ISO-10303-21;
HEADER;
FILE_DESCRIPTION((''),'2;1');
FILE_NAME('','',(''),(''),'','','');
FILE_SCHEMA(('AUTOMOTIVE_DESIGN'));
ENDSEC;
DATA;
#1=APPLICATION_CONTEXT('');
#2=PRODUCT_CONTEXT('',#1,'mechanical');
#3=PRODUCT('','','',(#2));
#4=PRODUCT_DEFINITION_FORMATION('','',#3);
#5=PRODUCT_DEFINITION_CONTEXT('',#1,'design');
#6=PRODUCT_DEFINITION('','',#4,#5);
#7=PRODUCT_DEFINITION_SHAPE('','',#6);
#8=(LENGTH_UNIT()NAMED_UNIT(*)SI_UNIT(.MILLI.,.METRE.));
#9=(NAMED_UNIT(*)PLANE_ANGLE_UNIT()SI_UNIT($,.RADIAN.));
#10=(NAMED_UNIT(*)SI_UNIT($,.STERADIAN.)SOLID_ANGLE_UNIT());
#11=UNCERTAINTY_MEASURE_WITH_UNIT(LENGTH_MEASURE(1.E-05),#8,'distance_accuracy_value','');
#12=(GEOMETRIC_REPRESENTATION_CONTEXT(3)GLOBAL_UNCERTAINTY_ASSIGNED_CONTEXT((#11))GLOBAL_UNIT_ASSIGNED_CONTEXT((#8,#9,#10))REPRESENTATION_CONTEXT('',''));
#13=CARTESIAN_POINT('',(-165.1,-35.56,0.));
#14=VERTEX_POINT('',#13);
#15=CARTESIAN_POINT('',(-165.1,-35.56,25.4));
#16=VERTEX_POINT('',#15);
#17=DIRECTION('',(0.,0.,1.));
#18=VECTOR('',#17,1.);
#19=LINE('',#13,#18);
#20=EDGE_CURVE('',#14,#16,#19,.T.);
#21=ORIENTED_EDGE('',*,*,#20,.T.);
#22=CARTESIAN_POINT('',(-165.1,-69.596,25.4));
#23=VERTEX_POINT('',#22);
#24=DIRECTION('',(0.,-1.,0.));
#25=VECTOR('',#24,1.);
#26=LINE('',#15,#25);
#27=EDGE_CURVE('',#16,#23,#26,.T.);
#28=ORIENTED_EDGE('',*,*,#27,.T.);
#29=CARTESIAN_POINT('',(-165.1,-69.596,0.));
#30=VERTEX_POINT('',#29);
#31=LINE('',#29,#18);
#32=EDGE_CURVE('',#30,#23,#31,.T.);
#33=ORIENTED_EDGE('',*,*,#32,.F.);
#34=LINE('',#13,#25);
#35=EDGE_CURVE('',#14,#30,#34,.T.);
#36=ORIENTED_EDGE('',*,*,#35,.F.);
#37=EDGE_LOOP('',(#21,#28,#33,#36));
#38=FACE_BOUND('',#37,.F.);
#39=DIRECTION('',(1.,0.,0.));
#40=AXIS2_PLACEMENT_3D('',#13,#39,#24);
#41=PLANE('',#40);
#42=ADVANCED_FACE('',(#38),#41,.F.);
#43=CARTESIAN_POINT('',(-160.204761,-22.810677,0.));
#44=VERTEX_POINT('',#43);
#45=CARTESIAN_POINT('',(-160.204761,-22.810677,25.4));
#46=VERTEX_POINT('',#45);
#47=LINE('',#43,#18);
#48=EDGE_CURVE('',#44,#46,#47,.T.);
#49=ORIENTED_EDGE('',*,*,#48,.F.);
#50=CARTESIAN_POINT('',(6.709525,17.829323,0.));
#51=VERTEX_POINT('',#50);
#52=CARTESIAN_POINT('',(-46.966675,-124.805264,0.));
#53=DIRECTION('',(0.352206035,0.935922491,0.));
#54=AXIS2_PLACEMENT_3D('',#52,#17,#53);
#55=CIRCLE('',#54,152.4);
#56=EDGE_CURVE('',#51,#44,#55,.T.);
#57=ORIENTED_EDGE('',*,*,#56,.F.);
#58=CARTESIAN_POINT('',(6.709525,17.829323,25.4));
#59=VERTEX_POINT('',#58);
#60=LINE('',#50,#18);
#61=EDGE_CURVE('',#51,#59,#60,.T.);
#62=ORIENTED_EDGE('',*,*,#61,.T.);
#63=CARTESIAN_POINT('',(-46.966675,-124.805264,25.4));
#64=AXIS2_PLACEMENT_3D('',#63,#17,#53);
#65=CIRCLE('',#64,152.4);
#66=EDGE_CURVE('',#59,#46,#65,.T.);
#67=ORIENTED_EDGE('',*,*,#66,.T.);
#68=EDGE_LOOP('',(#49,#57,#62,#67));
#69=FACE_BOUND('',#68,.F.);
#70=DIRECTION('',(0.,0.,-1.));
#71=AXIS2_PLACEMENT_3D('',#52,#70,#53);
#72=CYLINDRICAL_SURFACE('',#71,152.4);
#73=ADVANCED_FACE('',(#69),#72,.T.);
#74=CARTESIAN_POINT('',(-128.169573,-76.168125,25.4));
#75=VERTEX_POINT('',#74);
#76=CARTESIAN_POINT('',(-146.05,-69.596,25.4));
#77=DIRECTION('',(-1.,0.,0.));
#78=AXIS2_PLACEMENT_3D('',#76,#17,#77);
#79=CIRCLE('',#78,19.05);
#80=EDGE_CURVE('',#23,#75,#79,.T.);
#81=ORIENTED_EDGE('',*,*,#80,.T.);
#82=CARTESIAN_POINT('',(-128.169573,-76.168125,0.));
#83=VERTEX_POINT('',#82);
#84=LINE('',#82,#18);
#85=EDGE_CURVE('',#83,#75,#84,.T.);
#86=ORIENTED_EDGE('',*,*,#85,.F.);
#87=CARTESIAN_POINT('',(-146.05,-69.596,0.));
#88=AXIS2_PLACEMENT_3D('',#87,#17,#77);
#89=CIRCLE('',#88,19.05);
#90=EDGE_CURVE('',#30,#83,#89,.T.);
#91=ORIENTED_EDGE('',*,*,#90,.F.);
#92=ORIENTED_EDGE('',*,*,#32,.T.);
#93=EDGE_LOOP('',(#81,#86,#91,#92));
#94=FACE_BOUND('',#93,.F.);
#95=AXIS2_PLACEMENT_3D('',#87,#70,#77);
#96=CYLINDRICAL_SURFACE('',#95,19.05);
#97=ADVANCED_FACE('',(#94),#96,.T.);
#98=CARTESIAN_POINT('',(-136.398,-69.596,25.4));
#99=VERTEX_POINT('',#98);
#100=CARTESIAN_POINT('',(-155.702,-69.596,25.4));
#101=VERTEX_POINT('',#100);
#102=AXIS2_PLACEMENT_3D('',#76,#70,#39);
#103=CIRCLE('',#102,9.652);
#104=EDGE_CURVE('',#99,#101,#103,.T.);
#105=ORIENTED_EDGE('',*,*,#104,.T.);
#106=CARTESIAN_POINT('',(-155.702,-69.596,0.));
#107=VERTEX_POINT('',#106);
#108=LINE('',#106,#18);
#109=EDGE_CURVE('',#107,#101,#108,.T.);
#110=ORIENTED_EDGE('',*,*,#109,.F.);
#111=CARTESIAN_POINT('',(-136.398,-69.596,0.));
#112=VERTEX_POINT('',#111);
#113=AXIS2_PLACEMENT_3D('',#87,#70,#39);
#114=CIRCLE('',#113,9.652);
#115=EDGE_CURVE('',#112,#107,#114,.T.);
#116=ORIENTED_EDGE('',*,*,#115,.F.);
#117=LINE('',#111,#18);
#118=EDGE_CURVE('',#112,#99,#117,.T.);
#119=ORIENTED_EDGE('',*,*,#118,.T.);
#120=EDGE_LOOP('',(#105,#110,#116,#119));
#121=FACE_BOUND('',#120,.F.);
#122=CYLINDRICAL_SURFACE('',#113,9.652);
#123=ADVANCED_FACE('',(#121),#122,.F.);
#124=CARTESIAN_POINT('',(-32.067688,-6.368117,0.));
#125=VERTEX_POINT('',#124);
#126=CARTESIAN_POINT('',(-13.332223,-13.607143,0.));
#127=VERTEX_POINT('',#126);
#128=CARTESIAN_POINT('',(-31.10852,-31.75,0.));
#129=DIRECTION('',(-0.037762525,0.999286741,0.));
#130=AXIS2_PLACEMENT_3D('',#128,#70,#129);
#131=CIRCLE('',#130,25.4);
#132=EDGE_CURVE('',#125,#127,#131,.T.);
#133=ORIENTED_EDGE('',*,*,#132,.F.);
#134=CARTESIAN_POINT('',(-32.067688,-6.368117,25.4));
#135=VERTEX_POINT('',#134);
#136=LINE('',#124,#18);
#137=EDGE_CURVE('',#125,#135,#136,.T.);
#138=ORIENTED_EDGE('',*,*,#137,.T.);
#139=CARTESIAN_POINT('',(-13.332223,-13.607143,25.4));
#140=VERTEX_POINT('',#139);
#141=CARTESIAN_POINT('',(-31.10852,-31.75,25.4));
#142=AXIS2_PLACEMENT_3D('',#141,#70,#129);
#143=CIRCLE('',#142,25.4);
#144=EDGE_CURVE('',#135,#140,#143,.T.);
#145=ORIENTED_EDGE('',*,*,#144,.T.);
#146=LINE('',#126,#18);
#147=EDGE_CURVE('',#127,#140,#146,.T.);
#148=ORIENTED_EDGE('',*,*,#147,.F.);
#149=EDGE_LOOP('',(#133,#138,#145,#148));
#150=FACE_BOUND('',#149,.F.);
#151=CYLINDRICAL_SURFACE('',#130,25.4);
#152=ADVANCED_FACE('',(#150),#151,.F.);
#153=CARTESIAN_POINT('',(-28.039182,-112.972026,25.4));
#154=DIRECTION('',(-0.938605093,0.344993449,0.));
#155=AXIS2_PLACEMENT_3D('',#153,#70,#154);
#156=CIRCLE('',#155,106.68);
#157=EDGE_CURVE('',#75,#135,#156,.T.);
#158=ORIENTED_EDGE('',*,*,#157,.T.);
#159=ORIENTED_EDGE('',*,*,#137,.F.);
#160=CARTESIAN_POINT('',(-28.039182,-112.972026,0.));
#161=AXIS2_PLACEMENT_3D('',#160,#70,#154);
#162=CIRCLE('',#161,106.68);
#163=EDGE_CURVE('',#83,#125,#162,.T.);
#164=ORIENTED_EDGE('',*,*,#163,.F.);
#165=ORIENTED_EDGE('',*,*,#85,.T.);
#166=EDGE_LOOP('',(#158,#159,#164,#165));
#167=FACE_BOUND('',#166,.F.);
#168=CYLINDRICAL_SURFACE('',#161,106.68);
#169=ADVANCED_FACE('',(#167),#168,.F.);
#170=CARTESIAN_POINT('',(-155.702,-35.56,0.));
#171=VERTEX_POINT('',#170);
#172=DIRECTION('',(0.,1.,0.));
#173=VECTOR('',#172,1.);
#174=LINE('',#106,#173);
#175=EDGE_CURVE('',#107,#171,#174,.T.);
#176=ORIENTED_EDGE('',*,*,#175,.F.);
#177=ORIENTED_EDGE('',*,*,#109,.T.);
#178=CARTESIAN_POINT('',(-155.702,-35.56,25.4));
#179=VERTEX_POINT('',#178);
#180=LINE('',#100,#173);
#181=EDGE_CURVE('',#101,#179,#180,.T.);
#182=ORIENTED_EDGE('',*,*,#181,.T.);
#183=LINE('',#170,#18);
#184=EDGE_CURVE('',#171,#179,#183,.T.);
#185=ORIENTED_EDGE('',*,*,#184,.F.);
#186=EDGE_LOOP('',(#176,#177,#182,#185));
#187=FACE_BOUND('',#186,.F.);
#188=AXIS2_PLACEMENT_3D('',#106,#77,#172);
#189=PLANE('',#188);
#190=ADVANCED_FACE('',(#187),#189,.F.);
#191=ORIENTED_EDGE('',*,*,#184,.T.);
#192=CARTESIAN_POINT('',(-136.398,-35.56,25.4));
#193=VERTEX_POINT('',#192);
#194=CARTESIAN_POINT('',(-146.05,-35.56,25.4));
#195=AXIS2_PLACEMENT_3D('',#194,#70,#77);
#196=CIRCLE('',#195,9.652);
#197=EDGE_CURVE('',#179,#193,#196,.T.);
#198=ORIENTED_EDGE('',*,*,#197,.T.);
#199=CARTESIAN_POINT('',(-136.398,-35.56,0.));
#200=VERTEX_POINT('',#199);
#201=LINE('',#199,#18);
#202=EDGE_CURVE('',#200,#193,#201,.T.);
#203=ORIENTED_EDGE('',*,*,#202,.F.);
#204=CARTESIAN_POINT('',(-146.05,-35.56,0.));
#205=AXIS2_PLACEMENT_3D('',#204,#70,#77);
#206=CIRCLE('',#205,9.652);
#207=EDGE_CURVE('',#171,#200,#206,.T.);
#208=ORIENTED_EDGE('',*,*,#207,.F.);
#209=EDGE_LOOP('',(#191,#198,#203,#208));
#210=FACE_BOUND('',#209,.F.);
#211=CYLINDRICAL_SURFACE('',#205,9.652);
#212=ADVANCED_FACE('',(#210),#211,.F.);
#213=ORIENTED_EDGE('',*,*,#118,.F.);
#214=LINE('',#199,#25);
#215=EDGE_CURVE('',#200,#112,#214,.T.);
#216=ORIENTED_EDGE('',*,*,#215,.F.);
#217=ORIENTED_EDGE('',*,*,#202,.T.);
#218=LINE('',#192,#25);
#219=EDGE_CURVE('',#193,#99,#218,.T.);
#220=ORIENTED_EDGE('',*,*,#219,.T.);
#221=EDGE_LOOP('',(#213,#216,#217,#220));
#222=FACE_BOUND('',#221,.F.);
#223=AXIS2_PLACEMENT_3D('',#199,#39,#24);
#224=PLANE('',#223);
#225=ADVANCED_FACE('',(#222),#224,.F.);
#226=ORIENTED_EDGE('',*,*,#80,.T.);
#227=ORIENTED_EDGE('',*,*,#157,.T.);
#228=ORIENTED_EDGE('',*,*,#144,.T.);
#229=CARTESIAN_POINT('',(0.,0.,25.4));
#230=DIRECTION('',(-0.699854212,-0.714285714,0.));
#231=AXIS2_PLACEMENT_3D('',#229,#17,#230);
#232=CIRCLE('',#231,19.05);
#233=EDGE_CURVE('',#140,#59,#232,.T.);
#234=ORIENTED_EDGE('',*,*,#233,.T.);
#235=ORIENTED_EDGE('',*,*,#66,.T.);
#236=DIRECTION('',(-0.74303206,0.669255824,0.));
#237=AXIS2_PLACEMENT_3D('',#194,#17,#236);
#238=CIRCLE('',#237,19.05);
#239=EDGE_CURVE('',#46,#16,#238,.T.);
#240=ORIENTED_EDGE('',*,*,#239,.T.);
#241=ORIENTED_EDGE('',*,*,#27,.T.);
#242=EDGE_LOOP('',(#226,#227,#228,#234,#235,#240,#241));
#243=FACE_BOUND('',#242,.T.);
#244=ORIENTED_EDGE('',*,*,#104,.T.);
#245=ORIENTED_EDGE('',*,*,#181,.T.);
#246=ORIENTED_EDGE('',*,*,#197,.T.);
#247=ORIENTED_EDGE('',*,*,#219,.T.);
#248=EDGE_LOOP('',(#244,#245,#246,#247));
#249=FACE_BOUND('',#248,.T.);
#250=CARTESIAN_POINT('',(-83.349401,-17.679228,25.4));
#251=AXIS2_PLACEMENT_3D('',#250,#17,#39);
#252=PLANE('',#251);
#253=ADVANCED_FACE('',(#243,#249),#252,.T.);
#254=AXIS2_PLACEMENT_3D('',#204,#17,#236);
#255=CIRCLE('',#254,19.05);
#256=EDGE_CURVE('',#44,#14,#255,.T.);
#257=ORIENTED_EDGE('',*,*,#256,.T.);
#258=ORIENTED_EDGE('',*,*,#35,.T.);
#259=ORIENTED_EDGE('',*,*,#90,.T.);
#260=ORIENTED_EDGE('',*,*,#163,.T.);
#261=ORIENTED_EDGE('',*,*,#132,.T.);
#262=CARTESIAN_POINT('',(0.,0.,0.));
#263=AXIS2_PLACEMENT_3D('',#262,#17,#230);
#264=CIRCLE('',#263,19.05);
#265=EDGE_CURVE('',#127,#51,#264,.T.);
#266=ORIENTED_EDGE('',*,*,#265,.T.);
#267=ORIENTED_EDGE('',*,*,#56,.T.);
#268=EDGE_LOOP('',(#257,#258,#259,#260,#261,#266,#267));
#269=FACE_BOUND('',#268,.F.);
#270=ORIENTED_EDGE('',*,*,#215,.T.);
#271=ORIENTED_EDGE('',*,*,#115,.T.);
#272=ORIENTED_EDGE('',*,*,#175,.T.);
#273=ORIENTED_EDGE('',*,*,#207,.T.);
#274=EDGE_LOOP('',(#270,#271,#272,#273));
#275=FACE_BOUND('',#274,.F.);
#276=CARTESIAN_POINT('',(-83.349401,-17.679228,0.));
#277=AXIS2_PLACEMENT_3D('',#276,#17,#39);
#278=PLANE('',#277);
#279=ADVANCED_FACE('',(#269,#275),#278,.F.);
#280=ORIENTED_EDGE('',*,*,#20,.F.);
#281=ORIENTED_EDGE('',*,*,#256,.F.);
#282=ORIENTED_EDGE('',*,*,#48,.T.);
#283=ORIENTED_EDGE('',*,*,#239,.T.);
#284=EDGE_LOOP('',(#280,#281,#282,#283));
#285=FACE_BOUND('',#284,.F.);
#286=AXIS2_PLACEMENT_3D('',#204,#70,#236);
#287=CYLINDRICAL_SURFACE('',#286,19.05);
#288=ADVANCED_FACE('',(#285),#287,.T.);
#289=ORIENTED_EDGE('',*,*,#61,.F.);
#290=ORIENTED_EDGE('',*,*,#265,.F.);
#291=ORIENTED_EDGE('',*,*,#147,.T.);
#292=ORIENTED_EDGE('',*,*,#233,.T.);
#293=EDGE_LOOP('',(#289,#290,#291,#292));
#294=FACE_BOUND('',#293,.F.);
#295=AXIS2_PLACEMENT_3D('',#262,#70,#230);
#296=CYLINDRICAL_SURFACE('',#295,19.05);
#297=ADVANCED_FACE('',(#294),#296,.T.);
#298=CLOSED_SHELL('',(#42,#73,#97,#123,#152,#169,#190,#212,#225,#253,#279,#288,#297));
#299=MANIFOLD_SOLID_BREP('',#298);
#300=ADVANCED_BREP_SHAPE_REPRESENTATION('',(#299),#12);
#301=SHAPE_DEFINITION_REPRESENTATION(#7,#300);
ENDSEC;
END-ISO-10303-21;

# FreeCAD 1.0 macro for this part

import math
import FreeCAD as App
import Part
import Sketcher

V = App.Vector
Q = App.Units.Quantity

doc = App.newDocument("Part")
params = doc.addObject("Spreadsheet::Sheet", "Params")
for row, (alias, value) in enumerate([
    ("sketch1_radius", "1 in"),
    ("sketch1_radius2", "6 in"),
    ("sketch1_radius3", "4.2 in"),
    ("sketch1_radius4", "0.75 in"),
    ("sketch1_radius5", "0.38 in"),
    ("pad1_length", "1 in"),
], start=1):
    params.set(f"A{row}", alias)
    params.set(f"B{row}", "=" + value)
    params.setAlias(f"B{row}", alias)

body = doc.addObject("PartDesign::Body", "Body")

# Sketch on XY plane
sketch1 = body.newObject("Sketcher::SketchObject", "Sketch")
sketch1.AttachmentSupport = (doc.getObject("XY_Plane"), [""])
sketch1.MapMode = "FlatFace"
sketch1.addGeometry([
    Part.LineSegment(V(-165, -36, 0), V(-165, -70, 0)),  # 0
    Part.ArcOfCircle(Part.Circle(V(-146, -70, 0), V(0, 0, 1), 19), math.radians(180), math.radians(340)),  # 1
    Part.ArcOfCircle(Part.Circle(V(-28, -113, 0), V(0, 0, 1), 107), math.radians(92), math.radians(160)),  # 2
    Part.ArcOfCircle(Part.Circle(V(-31, -32, 0), V(0, 0, 1), 25), math.radians(46), math.radians(92)),  # 3
    Part.ArcOfCircle(Part.Circle(V(0, 0, 0), V(0, 0, 1), 19), math.radians(-134), math.radians(69)),  # 4
    Part.ArcOfCircle(Part.Circle(V(-47, -125, 0), V(0, 0, 1), 152), math.radians(69), math.radians(138)),  # 5
    Part.ArcOfCircle(Part.Circle(V(-146, -36, 0), V(0, 0, 1), 19), math.radians(138), math.radians(180)),  # 6
    Part.ArcOfCircle(Part.Circle(V(-146, -36, 0), V(0, 0, 1), 10), math.radians(0), math.radians(180)),  # 7
    Part.LineSegment(V(-136, -36, 0), V(-136, -70, 0)),  # 8
    Part.ArcOfCircle(Part.Circle(V(-146, -70, 0), V(0, 0, 1), 10), math.radians(180), math.radians(360)),  # 9
    Part.LineSegment(V(-156, -70, 0), V(-156, -36, 0)),  # 10
], False)
sketch1.addConstraint([
    Sketcher.Constraint("Tangent", 0, 2, 1, 1),
    Sketcher.Constraint("Tangent", 1, 2, 2, 2),
    Sketcher.Constraint("Tangent", 2, 1, 3, 2),
    Sketcher.Constraint("Tangent", 3, 1, 4, 1),
    Sketcher.Constraint("Tangent", 4, 2, 5, 1),
    Sketcher.Constraint("Tangent", 5, 2, 6, 1),
    Sketcher.Constraint("Tangent", 6, 2, 0, 1),
    Sketcher.Constraint("Tangent", 7, 1, 8, 1),
    Sketcher.Constraint("Tangent", 8, 2, 9, 2),
    Sketcher.Constraint("Tangent", 9, 1, 10, 1),
    Sketcher.Constraint("Tangent", 10, 2, 7, 2),
    Sketcher.Constraint("Vertical", 0),
    Sketcher.Constraint("Vertical", 8),
    Sketcher.Constraint("Vertical", 10),
    Sketcher.Constraint("Coincident", 4, 3, -1, 1),
    Sketcher.Constraint("Coincident", 7, 3, 6, 3),
    Sketcher.Constraint("Coincident", 9, 3, 1, 3),
    Sketcher.Constraint("Equal", 1, 4),
    Sketcher.Constraint("Radius", 3, Q("1 in")),
    Sketcher.Constraint("Radius", 5, Q("6 in")),
    Sketcher.Constraint("Radius", 2, Q("4.2 in")),
    Sketcher.Constraint("Radius", 1, Q("0.75 in")),
    Sketcher.Constraint("Radius", 7, Q("0.38 in")),
    Sketcher.Constraint("DistanceY", 0, 2, 0, 1, Q("1.34 in")),
    Sketcher.Constraint("DistanceY", 6, 3, -1, 1, Q("1.4 in")),
    Sketcher.Constraint("DistanceX", 0, 2, -1, 1, Q("6.5 in")),
    Sketcher.Constraint("DistanceY", 3, 3, -1, 1, Q("1.25 in")),
])
sketch1.setExpression("Constraints[18]", "Params.sketch1_radius")
sketch1.setExpression("Constraints[19]", "Params.sketch1_radius2")
sketch1.setExpression("Constraints[20]", "Params.sketch1_radius3")
sketch1.setExpression("Constraints[21]", "Params.sketch1_radius4")
sketch1.setExpression("Constraints[22]", "Params.sketch1_radius5")
pad1 = body.newObject("PartDesign::Pad", "Pad")
pad1.Profile = sketch1
pad1.setExpression("Length", "Params.pad1_length")

doc.recompute()
